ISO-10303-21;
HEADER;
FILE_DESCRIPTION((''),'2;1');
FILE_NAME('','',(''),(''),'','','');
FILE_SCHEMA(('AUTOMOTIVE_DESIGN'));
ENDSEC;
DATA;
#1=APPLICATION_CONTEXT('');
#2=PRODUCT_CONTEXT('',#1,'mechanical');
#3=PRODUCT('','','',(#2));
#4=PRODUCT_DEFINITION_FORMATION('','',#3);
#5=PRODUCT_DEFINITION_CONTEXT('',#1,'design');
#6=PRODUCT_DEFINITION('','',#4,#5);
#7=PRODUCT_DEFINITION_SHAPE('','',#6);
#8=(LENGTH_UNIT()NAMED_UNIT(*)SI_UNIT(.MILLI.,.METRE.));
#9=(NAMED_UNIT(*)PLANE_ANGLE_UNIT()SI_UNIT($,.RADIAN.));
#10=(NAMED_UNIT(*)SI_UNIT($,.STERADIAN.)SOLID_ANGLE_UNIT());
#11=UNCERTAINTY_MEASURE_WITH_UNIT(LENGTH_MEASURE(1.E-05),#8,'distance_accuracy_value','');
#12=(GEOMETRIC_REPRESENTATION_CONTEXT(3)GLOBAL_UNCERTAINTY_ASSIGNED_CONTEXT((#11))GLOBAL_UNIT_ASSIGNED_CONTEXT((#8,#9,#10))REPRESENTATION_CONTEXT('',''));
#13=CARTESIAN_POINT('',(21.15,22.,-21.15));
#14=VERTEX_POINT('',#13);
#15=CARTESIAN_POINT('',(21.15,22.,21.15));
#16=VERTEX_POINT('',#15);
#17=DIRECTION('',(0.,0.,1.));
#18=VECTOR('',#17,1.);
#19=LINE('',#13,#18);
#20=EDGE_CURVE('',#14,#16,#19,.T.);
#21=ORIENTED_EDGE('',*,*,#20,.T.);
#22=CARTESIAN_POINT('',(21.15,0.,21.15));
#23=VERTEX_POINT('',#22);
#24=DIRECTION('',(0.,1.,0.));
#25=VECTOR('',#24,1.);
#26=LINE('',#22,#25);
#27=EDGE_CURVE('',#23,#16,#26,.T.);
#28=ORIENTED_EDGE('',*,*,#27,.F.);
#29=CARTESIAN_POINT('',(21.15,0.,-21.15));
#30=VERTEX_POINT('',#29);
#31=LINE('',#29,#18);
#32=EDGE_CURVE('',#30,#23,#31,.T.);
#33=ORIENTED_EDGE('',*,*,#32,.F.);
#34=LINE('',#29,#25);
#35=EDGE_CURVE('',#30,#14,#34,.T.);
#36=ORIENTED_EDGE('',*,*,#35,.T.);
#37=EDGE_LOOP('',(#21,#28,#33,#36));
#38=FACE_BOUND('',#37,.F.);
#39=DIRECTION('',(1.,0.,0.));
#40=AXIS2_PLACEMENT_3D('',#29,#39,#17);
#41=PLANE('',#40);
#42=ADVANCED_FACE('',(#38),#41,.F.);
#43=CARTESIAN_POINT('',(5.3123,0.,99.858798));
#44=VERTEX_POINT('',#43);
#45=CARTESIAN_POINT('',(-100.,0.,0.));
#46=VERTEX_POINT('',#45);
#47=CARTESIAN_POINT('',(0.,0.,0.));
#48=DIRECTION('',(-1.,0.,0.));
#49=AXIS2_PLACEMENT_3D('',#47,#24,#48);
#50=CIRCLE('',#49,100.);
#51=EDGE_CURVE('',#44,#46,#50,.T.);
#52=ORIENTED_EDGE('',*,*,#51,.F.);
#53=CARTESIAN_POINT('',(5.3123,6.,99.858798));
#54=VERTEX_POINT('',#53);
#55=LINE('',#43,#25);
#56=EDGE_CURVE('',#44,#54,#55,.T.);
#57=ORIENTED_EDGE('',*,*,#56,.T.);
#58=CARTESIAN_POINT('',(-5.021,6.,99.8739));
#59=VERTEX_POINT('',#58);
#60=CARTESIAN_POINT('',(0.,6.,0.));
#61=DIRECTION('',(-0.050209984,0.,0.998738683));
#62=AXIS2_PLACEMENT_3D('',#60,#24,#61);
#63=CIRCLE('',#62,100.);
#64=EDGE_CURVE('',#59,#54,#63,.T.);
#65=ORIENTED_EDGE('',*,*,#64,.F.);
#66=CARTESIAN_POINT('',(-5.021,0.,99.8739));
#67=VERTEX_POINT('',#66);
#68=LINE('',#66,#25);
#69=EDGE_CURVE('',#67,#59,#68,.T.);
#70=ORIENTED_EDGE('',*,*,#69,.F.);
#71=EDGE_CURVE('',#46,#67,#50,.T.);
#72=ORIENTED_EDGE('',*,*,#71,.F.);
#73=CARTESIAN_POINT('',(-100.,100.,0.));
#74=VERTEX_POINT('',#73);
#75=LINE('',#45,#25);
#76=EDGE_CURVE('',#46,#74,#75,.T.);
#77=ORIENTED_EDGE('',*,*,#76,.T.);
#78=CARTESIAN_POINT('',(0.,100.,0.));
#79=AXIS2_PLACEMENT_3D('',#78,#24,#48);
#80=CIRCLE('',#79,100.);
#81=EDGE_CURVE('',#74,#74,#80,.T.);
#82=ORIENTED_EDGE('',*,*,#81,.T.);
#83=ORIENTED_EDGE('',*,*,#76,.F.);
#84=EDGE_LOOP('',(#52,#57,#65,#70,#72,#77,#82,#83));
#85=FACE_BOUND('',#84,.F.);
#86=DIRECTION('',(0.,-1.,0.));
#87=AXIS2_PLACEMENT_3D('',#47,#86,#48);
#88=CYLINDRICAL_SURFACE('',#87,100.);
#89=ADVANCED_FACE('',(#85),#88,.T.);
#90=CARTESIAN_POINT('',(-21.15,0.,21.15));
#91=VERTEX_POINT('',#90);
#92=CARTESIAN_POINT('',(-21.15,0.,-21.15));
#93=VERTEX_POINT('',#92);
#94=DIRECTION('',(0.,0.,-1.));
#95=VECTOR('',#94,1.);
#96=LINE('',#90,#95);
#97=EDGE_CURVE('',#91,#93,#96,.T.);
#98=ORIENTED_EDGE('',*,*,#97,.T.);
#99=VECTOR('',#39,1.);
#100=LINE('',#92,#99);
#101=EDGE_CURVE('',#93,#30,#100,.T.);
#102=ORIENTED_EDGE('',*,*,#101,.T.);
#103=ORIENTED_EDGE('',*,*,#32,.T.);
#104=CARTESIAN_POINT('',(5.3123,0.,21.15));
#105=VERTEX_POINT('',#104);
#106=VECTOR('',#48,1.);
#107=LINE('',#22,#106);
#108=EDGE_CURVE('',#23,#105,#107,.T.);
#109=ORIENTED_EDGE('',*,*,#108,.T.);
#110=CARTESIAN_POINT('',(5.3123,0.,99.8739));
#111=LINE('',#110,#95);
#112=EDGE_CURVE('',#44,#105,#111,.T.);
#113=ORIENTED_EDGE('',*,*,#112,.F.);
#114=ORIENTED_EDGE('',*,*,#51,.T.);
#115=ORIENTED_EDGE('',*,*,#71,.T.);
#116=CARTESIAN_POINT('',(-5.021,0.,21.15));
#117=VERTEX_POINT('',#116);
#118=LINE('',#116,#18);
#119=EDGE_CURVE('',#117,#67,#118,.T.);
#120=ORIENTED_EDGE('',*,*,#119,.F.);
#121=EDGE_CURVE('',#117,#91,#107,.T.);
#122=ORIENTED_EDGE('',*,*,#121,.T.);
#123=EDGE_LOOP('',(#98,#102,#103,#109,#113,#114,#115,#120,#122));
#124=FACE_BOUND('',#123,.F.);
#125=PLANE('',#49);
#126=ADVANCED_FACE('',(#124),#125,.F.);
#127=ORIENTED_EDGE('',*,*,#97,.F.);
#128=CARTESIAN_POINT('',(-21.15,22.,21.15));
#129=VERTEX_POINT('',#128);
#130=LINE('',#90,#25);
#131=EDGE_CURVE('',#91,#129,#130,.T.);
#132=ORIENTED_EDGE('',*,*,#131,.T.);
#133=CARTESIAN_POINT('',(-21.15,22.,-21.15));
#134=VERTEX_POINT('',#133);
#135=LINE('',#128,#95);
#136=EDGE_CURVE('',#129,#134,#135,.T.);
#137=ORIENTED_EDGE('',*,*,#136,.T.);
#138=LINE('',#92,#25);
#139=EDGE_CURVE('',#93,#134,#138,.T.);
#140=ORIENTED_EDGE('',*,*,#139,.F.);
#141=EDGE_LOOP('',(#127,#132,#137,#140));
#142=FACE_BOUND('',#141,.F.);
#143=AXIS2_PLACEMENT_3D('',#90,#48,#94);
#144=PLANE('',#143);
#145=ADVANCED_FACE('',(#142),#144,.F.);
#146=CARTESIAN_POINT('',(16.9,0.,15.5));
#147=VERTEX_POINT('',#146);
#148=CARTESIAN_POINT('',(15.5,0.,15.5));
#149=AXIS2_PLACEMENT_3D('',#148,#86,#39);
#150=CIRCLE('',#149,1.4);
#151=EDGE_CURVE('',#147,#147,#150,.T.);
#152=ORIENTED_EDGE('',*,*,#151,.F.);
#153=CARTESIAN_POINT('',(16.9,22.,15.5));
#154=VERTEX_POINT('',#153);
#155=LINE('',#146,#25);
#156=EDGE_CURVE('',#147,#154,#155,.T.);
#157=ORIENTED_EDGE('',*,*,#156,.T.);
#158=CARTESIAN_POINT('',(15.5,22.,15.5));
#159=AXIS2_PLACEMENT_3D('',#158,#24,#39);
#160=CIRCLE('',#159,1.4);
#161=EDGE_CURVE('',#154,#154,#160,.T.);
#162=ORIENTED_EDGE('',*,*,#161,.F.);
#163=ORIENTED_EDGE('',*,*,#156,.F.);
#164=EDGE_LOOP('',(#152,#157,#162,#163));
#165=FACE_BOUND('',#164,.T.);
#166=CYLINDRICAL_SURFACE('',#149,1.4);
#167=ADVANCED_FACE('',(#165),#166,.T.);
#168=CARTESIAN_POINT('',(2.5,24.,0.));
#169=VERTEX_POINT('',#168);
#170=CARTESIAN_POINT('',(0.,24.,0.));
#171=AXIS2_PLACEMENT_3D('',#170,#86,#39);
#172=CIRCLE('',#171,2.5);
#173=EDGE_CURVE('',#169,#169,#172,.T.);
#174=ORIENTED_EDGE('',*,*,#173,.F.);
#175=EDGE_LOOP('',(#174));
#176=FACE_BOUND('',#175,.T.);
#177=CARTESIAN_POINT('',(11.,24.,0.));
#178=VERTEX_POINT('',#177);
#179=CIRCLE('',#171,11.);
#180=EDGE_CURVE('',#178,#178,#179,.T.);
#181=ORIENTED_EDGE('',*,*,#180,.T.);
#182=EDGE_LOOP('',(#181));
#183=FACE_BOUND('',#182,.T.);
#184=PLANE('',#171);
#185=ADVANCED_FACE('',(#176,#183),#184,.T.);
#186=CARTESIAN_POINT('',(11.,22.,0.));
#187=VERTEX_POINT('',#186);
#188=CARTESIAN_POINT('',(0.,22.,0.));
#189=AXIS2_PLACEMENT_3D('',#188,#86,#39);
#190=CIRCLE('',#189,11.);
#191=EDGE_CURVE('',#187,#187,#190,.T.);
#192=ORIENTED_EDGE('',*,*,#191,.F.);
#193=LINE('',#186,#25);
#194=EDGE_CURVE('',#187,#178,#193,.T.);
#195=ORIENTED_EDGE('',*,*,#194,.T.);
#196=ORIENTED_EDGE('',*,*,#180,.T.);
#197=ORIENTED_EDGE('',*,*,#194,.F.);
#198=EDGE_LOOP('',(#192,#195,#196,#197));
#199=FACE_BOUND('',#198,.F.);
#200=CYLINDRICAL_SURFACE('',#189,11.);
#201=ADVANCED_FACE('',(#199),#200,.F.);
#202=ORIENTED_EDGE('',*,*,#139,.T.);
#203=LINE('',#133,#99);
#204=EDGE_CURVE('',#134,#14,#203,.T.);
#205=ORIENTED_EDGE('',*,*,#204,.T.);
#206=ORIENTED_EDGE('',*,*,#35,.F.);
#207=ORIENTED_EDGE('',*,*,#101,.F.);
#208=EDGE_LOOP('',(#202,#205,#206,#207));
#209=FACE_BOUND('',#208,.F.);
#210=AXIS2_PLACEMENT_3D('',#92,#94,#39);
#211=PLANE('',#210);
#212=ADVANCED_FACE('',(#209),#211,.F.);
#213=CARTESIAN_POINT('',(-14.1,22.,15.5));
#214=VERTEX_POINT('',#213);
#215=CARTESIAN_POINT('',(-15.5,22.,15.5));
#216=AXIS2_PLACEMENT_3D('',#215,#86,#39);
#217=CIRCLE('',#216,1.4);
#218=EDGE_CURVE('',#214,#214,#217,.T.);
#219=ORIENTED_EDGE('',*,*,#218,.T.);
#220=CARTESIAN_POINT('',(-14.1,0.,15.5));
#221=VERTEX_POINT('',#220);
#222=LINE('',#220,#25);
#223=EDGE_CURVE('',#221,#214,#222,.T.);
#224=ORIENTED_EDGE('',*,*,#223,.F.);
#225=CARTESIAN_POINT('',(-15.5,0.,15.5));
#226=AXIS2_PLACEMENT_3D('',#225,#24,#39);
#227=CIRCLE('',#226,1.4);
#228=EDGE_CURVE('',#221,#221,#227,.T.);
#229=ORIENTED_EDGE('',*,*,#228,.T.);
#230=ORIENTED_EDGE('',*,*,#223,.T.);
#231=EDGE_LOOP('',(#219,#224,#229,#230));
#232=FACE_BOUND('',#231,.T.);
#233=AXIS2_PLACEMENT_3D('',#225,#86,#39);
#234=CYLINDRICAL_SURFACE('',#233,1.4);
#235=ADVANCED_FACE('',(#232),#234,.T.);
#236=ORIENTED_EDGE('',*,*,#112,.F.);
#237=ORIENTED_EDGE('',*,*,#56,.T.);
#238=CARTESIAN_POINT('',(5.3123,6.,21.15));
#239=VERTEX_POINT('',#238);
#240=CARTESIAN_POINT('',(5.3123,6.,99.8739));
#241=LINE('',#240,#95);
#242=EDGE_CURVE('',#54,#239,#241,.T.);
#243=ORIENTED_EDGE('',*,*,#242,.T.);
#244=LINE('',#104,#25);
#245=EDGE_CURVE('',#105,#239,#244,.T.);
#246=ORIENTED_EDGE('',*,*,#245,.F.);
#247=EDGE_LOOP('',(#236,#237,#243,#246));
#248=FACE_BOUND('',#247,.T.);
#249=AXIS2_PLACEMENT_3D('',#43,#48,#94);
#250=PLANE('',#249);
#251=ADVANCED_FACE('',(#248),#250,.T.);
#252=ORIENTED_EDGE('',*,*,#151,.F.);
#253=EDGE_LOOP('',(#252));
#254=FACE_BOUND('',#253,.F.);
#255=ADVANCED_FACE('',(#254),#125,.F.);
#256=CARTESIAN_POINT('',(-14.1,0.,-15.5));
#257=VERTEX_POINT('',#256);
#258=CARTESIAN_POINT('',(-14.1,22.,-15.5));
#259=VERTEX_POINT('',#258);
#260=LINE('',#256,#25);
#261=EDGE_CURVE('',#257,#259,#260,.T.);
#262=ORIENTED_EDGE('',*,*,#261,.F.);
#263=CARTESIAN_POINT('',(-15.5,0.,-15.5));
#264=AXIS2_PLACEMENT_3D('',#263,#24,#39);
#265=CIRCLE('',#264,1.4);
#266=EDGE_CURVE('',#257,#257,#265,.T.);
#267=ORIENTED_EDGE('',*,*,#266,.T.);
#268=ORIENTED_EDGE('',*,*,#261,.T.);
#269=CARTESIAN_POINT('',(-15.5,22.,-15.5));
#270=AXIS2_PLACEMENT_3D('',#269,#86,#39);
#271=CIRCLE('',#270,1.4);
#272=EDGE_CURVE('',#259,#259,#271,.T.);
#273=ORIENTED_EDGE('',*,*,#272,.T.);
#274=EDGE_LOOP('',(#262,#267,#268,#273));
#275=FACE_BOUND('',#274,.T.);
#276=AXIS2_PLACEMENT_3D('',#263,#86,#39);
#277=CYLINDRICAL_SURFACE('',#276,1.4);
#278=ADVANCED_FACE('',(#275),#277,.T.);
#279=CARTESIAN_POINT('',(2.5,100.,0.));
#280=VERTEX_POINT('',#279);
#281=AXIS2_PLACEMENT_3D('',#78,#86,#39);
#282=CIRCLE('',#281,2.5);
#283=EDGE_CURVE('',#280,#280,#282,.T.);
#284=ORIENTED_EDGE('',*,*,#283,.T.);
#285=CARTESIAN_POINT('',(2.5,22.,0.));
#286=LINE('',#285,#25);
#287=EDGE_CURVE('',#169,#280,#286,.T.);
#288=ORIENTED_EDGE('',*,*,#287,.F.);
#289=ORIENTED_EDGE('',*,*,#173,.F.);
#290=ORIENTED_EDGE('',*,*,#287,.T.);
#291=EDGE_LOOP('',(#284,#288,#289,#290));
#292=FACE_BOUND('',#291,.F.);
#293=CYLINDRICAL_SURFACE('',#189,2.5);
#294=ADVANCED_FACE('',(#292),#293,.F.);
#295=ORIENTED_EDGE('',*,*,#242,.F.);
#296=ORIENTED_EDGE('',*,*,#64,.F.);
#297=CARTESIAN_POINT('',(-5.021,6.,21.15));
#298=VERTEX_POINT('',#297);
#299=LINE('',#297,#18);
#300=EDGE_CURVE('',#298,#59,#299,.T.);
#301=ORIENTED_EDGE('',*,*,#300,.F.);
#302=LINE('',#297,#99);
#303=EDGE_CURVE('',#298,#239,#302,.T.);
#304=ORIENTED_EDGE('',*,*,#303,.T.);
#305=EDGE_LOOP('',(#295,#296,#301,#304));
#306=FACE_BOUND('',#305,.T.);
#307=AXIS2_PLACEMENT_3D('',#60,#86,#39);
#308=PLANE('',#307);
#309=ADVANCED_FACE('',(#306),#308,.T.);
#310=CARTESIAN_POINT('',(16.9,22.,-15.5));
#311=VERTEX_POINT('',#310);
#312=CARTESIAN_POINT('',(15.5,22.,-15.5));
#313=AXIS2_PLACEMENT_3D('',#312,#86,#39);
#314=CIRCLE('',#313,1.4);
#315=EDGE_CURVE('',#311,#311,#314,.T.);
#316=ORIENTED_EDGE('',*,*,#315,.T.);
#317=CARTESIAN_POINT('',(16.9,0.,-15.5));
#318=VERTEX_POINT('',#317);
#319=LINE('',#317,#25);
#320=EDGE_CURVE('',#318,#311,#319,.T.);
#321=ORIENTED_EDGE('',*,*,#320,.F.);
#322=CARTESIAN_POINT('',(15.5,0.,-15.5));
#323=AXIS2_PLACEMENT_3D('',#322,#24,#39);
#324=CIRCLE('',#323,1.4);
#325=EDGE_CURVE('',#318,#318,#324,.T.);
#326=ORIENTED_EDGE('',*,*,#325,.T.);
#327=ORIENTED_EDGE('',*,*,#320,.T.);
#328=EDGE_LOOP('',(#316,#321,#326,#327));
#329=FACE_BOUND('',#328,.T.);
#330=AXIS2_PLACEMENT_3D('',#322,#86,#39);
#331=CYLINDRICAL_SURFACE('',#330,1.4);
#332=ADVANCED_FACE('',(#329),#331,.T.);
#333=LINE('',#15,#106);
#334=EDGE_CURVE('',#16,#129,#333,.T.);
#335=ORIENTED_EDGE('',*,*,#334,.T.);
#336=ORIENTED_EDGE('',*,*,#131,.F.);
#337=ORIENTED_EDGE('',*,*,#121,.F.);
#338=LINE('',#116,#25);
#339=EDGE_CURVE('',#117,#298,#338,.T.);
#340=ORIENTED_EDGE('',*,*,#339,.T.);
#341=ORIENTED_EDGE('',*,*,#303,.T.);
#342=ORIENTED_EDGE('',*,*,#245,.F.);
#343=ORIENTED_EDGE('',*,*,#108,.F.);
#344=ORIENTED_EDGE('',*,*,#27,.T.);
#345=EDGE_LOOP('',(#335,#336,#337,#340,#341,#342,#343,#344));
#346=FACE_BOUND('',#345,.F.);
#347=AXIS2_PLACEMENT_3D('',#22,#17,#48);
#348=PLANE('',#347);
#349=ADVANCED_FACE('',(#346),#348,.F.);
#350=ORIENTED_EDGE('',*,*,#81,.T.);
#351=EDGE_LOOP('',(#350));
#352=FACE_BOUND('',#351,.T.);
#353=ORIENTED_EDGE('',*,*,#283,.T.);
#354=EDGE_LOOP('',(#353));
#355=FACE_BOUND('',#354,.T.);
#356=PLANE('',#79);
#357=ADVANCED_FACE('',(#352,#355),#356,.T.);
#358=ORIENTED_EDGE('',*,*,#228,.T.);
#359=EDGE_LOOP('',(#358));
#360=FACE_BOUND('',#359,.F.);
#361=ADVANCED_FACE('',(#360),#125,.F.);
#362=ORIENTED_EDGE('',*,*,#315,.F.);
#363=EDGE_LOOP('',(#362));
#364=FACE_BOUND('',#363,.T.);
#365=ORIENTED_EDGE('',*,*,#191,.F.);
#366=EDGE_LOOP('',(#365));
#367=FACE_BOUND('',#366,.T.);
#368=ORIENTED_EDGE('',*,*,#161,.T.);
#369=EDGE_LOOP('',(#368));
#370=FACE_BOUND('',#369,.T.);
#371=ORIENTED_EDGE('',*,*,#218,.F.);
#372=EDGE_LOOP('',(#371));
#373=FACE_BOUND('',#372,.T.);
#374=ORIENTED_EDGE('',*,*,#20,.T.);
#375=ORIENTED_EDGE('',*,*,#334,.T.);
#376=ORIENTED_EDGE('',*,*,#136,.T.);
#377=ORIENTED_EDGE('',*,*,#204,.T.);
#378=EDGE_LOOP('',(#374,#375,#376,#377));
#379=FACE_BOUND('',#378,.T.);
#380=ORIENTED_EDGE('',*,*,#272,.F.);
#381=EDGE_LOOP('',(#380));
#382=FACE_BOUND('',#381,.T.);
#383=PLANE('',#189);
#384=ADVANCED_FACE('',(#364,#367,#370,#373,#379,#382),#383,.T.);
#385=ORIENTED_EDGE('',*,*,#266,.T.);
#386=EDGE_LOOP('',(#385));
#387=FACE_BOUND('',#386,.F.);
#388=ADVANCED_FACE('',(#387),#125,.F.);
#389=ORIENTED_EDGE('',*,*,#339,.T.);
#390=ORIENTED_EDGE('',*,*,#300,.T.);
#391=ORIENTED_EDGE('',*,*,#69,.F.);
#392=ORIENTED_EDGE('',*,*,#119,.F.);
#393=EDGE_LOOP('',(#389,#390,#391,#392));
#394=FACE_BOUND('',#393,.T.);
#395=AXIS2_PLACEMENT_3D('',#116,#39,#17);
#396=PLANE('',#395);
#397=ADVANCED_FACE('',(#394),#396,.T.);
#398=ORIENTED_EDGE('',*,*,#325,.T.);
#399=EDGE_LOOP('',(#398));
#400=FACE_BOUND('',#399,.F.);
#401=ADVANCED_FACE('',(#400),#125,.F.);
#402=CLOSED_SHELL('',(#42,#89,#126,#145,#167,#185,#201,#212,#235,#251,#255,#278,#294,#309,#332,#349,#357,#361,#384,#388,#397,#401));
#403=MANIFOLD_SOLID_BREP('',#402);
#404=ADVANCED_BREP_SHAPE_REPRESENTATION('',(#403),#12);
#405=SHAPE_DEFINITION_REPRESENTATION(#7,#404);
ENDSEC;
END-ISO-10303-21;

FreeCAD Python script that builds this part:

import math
import FreeCAD as App
import Part
import Sketcher


def add_polygon(sketch, points):
    """Adds a closed chain of lines whose ends are joined by coincident constraints."""
    first, n = sketch.GeometryCount, len(points)
    for a, b in zip(points, points[1:] + points[:1]):
        sketch.addGeometry(Part.LineSegment(App.Vector(*a, 0), App.Vector(*b, 0)), False)
    for i in range(n):
        sketch.addConstraint(Sketcher.Constraint("Coincident", first + i, 2, first + (i + 1) % n, 1))

doc = App.newDocument("Part")
body = doc.addObject("PartDesign::Body", "Body")

# Sketch on XZ plane
sketch1 = body.newObject("Sketcher::SketchObject", "Sketch")
sketch1.AttachmentSupport = (doc.getObject("XZ_Plane"), [""])
sketch1.MapMode = "FlatFace"
sketch1.addGeometry(Part.Circle(App.Vector(0, 0, 0), App.Vector(0, 0, 1), 100), False)
sketch1.addConstraint([
    Sketcher.Constraint("Coincident", 0, 3, -1, 1),
    Sketcher.Constraint("Diameter", 0, 200.0),
])
pad1 = body.newObject("PartDesign::Pad", "Pad")
pad1.Profile = sketch1
pad1.Length = 100
pad1.Reversed = True

# Sketch on XZ plane
sketch2 = body.newObject("Sketcher::SketchObject", "Sketch001")
sketch2.AttachmentSupport = (doc.getObject("XZ_Plane"), [""])
sketch2.MapMode = "FlatFace"
sketch2.AttachmentOffset = App.Placement(App.Vector(0, 0, -100), App.Rotation())
sketch2.addGeometry(Part.Circle(App.Vector(0, 0, 0), App.Vector(0, 0, 1), 2.5), False)
sketch2.addConstraint([
    Sketcher.Constraint("Coincident", 0, 3, -1, 1),
    Sketcher.Constraint("Diameter", 0, 5.0),
])
pocket1 = body.newObject("PartDesign::Pocket", "Pocket")
pocket1.Profile = sketch2
pocket1.Length = 22

# Sketch on XZ plane
sketch3 = body.newObject("Sketcher::SketchObject", "Sketch002")
sketch3.AttachmentSupport = (doc.getObject("XZ_Plane"), [""])
sketch3.MapMode = "FlatFace"
add_polygon(sketch3, [(21.1, -21.1), (21.1, 21.1), (-21.1, 21.1), (-21.1, -21.1)])  # lines 0-3
sketch3.addGeometry(Part.Circle(App.Vector(15.5, 15.5, 0), App.Vector(0, 0, 1), 1.4), False)  # 4
sketch3.addGeometry(Part.Circle(App.Vector(15.5, -15.5, 0), App.Vector(0, 0, 1), 1.4), False)  # 5
sketch3.addGeometry(Part.Circle(App.Vector(-15.5, -15.5, 0), App.Vector(0, 0, 1), 1.4), False)  # 6
sketch3.addGeometry(Part.Circle(App.Vector(-15.5, 15.5, 0), App.Vector(0, 0, 1), 1.4), False)  # 7
sketch3.addConstraint([
    Sketcher.Constraint("Vertical", 0),
    Sketcher.Constraint("Horizontal", 1),
    Sketcher.Constraint("Vertical", 2),
    Sketcher.Constraint("Horizontal", 3),
    Sketcher.Constraint("Equal", 4, 5),
    Sketcher.Constraint("Equal", 5, 6),
    Sketcher.Constraint("Equal", 6, 7),
    Sketcher.Constraint("Symmetric", 4, 3, 6, 3, -1, 1),
    Sketcher.Constraint("Symmetric", 5, 3, 7, 3, -1, 1),
    Sketcher.Constraint("Symmetric", 0, 2, 2, 2, -1, 1),
    Sketcher.Constraint("Symmetric", 5, 3, 6, 3, -2),
    Sketcher.Constraint("Equal", 3, 0),
    Sketcher.Constraint("Diameter", 4, 2.8),
    Sketcher.Constraint("DistanceX", 1, 2, 1, 1, 42.3),
    Sketcher.Constraint("DistanceY", 5, 3, 4, 3, 31.0),
    Sketcher.Constraint("DistanceX", 6, 3, 5, 3, 31.0),
])
pocket2 = body.newObject("PartDesign::Pocket", "Pocket001")
pocket2.Profile = sketch3
pocket2.Length = 22

# Sketch on XZ plane
sketch4 = body.newObject("Sketcher::SketchObject", "Sketch003")
sketch4.AttachmentSupport = (doc.getObject("XZ_Plane"), [""])
sketch4.MapMode = "FlatFace"
sketch4.AttachmentOffset = App.Placement(App.Vector(0, 0, -22), App.Rotation())
sketch4.addGeometry(Part.Circle(App.Vector(0, 0, 0), App.Vector(0, 0, 1), 2.5), False)
sketch4.addConstraint([
    Sketcher.Constraint("Coincident", 0, 3, -1, 1),
    Sketcher.Constraint("Diameter", 0, 5.0),
])
pocket3 = body.newObject("PartDesign::Pocket", "Pocket002")
pocket3.Profile = sketch4
pocket3.Length = 80

# Sketch on XZ plane
sketch5 = body.newObject("Sketcher::SketchObject", "Sketch004")
sketch5.AttachmentSupport = (doc.getObject("XZ_Plane"), [""])
sketch5.MapMode = "FlatFace"
sketch5.AttachmentOffset = App.Placement(App.Vector(0, 0, -22), App.Rotation())
sketch5.addGeometry(Part.Circle(App.Vector(0, 0, 0), App.Vector(0, 0, 1), 11), False)
sketch5.addConstraint([
    Sketcher.Constraint("Coincident", 0, 3, -1, 1),
    Sketcher.Constraint("Diameter", 0, 22.0),
])
pocket4 = body.newObject("PartDesign::Pocket", "Pocket003")
pocket4.Profile = sketch5
pocket4.Length = 2

# Sketch on XZ plane
sketch6 = body.newObject("Sketcher::SketchObject", "Sketch005")
sketch6.AttachmentSupport = (doc.getObject("XZ_Plane"), [""])
sketch6.MapMode = "FlatFace"
sketch6.addGeometry([
    Part.LineSegment(App.Vector(-5.02, 99.87, 0), App.Vector(-5.02, 21.15, 0)),  # 0
    Part.LineSegment(App.Vector(-5.02, 21.15, 0), App.Vector(5.31, 21.15, 0)),  # 1
    Part.LineSegment(App.Vector(5.31, 21.15, 0), App.Vector(5.31, 99.86, 0)),  # 2
    Part.ArcOfCircle(Part.Circle(App.Vector(0, 0, 0), App.Vector(0, 0, 1), 100), math.radians(86.95), math.radians(87.12)),  # 3
    Part.LineSegment(App.Vector(5.02, 99.87, 0), App.Vector(5.31, 99.87, 0)),  # 4
    Part.ArcOfCircle(Part.Circle(App.Vector(0.15, 63.12, 0), App.Vector(0, 0, 1), 37.11), math.radians(82), math.radians(98)),  # 5
], False)
sketch6.addConstraint([
    Sketcher.Constraint("Coincident", 0, 2, 1, 1),
    Sketcher.Constraint("Coincident", 1, 2, 2, 1),
    Sketcher.Constraint("Coincident", 2, 2, 3, 1),
    Sketcher.Constraint("Coincident", 3, 2, 4, 1),
    Sketcher.Constraint("Coincident", 4, 2, 5, 1),
    Sketcher.Constraint("Coincident", 5, 2, 0, 1),
    Sketcher.Constraint("Vertical", 0),
    Sketcher.Constraint("Horizontal", 1),
    Sketcher.Constraint("Vertical", 2),
    Sketcher.Constraint("Horizontal", 4),
    Sketcher.Constraint("Coincident", 3, 3, -1, 1),
    Sketcher.Constraint("Horizontal", 4, 2, 5, 2),
    Sketcher.Constraint("Vertical", 2, 2, 4, 2),
    Sketcher.Constraint("Radius", 3, 100.0),
    Sketcher.Constraint("DistanceY", 0, 2, 0, 1, 78.724),
    Sketcher.Constraint("Radius", 5, 37.112),
    Sketcher.Constraint("DistanceX", 4, 1, 4, 2, 0.292),
    Sketcher.Constraint("DistanceY", -1, 1, 0, 2, 21.15),
    Sketcher.Constraint("DistanceX", 1, 1, 1, 2, 10.3333),
])
pocket5 = body.newObject("PartDesign::Pocket", "Pocket004")
pocket5.Profile = sketch6
pocket5.Length = 6

doc.recompute()
